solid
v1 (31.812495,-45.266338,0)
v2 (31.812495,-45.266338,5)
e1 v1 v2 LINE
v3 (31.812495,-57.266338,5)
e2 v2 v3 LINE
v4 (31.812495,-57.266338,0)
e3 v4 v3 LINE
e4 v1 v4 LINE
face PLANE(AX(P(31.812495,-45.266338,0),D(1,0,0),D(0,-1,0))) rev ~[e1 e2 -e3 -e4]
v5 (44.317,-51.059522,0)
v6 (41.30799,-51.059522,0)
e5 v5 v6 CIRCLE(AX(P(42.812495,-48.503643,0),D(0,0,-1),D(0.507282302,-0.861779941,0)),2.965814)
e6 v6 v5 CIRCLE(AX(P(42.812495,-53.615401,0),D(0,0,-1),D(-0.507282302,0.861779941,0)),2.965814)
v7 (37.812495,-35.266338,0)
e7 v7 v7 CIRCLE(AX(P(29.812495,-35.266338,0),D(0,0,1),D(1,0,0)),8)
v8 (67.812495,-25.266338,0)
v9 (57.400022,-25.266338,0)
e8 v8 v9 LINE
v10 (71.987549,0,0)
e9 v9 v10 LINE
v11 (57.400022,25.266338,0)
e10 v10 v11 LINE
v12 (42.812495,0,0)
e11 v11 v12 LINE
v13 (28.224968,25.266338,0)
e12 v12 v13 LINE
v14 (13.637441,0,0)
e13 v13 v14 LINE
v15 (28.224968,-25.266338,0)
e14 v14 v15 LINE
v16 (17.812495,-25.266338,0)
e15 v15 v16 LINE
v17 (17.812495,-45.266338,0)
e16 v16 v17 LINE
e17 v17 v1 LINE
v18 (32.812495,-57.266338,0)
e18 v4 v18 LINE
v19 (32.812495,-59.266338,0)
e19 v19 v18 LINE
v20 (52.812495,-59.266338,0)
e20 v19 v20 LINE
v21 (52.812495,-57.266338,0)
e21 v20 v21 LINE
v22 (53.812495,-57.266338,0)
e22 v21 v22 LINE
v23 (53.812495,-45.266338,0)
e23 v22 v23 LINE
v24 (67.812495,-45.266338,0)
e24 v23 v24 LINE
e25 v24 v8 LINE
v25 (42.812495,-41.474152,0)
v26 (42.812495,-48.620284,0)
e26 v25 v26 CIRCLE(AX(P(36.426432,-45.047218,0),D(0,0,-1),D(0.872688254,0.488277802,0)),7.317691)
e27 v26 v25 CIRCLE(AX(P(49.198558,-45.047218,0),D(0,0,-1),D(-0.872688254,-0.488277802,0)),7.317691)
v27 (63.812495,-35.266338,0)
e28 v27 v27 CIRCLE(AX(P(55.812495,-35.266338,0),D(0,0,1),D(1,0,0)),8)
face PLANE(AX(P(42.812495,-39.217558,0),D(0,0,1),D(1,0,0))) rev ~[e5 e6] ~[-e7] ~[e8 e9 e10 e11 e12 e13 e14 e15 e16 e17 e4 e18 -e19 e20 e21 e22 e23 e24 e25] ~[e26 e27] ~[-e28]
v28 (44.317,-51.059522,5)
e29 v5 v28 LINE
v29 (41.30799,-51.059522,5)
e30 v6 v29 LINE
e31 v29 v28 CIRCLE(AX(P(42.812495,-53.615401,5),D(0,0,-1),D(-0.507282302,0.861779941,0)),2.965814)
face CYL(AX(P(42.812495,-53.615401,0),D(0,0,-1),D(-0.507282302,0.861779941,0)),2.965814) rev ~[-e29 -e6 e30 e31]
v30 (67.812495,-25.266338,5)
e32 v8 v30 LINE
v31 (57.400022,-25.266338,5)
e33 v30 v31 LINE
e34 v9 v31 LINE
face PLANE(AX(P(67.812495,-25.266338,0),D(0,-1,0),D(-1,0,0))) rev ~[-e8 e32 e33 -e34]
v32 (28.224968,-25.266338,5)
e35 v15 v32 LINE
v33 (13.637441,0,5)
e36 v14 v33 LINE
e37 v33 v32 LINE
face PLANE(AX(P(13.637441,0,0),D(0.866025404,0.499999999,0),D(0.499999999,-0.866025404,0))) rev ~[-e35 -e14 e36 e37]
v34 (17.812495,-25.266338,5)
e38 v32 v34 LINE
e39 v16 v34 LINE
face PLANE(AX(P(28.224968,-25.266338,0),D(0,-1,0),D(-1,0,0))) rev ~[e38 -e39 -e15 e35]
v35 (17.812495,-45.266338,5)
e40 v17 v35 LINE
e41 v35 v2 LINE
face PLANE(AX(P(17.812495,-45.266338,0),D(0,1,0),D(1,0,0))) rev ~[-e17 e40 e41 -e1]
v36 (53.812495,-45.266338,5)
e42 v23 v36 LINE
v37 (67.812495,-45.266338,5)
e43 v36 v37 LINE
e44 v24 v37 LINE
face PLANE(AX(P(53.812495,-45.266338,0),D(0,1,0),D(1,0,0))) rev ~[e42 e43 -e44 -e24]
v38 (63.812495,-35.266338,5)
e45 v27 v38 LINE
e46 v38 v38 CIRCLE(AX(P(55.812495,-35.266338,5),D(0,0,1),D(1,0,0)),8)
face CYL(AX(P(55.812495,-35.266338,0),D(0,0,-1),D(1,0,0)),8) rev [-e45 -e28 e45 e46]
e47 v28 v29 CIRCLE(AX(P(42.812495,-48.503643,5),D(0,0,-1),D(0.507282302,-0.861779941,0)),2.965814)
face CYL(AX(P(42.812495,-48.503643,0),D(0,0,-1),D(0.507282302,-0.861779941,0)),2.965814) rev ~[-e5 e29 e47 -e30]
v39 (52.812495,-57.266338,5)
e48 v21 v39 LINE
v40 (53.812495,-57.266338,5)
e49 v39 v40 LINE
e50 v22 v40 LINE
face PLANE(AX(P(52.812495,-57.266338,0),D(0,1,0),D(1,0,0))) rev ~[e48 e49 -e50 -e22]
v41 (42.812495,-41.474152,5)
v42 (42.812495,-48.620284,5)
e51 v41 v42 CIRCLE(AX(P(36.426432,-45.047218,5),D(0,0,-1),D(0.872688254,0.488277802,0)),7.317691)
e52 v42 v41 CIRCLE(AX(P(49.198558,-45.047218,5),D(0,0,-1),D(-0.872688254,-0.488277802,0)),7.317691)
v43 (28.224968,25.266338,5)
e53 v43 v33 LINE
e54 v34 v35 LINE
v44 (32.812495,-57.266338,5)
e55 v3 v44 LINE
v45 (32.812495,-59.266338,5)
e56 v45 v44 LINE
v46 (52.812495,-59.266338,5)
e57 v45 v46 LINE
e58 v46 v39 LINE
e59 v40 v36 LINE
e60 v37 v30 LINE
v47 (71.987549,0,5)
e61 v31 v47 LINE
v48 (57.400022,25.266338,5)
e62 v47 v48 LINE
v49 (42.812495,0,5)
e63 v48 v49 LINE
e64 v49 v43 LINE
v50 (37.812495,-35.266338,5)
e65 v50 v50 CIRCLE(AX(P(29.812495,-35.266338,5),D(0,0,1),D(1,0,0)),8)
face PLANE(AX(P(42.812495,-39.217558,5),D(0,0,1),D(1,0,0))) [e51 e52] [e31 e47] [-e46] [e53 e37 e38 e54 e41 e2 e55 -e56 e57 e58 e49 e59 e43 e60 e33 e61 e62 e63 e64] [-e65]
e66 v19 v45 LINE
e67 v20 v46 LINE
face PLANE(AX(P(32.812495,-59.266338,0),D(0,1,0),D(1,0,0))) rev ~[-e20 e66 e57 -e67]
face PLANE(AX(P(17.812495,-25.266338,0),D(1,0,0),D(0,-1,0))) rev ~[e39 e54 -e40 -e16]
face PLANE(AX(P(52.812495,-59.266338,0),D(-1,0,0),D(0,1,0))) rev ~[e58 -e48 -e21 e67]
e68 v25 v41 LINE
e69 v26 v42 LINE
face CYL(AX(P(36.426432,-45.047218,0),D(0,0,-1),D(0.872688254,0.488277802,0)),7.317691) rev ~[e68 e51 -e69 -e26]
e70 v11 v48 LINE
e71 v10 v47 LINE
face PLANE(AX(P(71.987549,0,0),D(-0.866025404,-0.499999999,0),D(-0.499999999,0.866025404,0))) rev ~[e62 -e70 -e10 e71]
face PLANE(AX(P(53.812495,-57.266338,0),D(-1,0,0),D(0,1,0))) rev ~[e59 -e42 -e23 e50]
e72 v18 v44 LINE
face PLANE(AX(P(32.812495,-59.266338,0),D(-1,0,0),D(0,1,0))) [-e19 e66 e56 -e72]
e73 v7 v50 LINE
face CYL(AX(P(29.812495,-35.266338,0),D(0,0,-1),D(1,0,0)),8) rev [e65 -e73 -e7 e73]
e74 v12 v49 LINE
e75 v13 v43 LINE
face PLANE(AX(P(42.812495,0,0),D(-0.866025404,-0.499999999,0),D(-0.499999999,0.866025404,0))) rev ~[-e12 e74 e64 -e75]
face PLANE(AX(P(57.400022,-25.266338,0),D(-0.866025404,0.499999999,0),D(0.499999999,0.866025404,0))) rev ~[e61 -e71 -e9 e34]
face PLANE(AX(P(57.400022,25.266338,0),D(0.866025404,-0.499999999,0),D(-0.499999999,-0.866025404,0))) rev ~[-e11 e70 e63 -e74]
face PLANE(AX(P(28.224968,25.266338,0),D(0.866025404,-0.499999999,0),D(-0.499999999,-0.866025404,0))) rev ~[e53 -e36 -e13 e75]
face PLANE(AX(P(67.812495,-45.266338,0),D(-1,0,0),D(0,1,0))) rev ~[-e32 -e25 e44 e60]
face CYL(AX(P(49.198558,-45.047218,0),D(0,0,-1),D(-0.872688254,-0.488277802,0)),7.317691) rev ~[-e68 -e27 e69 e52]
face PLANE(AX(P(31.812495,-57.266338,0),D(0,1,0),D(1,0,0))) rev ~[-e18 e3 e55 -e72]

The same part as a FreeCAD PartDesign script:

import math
import FreeCAD as App
import Part
import Sketcher
from FreeCAD import Vector
Q = App.Units.Quantity

doc = App.newDocument("Part")
body = doc.addObject("PartDesign::Body", "Body")

# Sketch on XY plane
sketch1 = body.newObject("Sketcher::SketchObject", "Sketch")
sketch1.AttachmentSupport = (doc.getObject("XY_Plane"), [""])
sketch1.MapMode = "FlatFace"
sketch1.addGeometry([
    Part.LineSegment(Vector(17.8, -25.3, 0), Vector(17.8, -45.3, 0)),  # 0
    Part.LineSegment(Vector(17.8, -45.3, 0), Vector(31.8, -45.3, 0)),  # 1
    Part.LineSegment(Vector(31.8, -45.3, 0), Vector(31.8, -57.3, 0)),  # 2
    Part.LineSegment(Vector(31.8, -57.3, 0), Vector(32.8, -57.3, 0)),  # 3
    Part.LineSegment(Vector(32.8, -57.3, 0), Vector(32.8, -59.3, 0)),  # 4
    Part.LineSegment(Vector(32.8, -59.3, 0), Vector(52.8, -59.3, 0)),  # 5
    Part.LineSegment(Vector(52.8, -59.3, 0), Vector(52.8, -57.3, 0)),  # 6
    Part.LineSegment(Vector(52.8, -57.3, 0), Vector(53.8, -57.3, 0)),  # 7
    Part.LineSegment(Vector(53.8, -57.3, 0), Vector(53.8, -45.3, 0)),  # 8
    Part.LineSegment(Vector(53.8, -45.3, 0), Vector(67.8, -45.3, 0)),  # 9
    Part.LineSegment(Vector(67.8, -45.3, 0), Vector(67.8, -25.3, 0)),  # 10
    Part.LineSegment(Vector(67.8, -25.3, 0), Vector(57.4, -25.3, 0)),  # 11
    Part.LineSegment(Vector(57.4, -25.3, 0), Vector(72, 0, 0)),  # 12
    Part.LineSegment(Vector(72, 0, 0), Vector(57.4, 25.3, 0)),  # 13
    Part.LineSegment(Vector(57.4, 25.3, 0), Vector(42.8, 0, 0)),  # 14
    Part.LineSegment(Vector(42.8, 0, 0), Vector(28.2, 25.3, 0)),  # 15
    Part.LineSegment(Vector(28.2, 25.3, 0), Vector(13.6, 0, 0)),  # 16
    Part.LineSegment(Vector(13.6, 0, 0), Vector(28.2, -25.3, 0)),  # 17
    Part.LineSegment(Vector(28.2, -25.3, 0), Vector(17.8, -25.3, 0)),  # 18
    Part.ArcOfCircle(Part.Circle(Vector(42.8, -53.6, 0), Vector(0, 0, 1), 3), math.radians(60), math.radians(120)),  # 19
    Part.ArcOfCircle(Part.Circle(Vector(42.8, -48.5, 0), Vector(0, 0, 1), 3), math.radians(-120), math.radians(-60)),  # 20
    Part.ArcOfCircle(Part.Circle(Vector(49.2, -45, 0), Vector(0, 0, 1), 7.3), math.radians(151), math.radians(209)),  # 21
    Part.ArcOfCircle(Part.Circle(Vector(36.4, -45, 0), Vector(0, 0, 1), 7.3), math.radians(-29), math.radians(29)),  # 22
    Part.Circle(Vector(29.8, -35.3, 0), Vector(0, 0, 1), 8),  # 23
    Part.Circle(Vector(55.8, -35.3, 0), Vector(0, 0, 1), 8),  # 24
], False)
sketch1.addConstraint([
    Sketcher.Constraint("Coincident", 0, 2, 1, 1),
    Sketcher.Constraint("Coincident", 1, 2, 2, 1),
    Sketcher.Constraint("Coincident", 2, 2, 3, 1),
    Sketcher.Constraint("Coincident", 3, 2, 4, 1),
    Sketcher.Constraint("Coincident", 4, 2, 5, 1),
    Sketcher.Constraint("Coincident", 5, 2, 6, 1),
    Sketcher.Constraint("Coincident", 6, 2, 7, 1),
    Sketcher.Constraint("Coincident", 7, 2, 8, 1),
    Sketcher.Constraint("Coincident", 8, 2, 9, 1),
    Sketcher.Constraint("Coincident", 9, 2, 10, 1),
    Sketcher.Constraint("Coincident", 10, 2, 11, 1),
    Sketcher.Constraint("Coincident", 11, 2, 12, 1),
    Sketcher.Constraint("Coincident", 12, 2, 13, 1),
    Sketcher.Constraint("Coincident", 13, 2, 14, 1),
    Sketcher.Constraint("Coincident", 14, 2, 15, 1),
    Sketcher.Constraint("Coincident", 15, 2, 16, 1),
    Sketcher.Constraint("Coincident", 16, 2, 17, 1),
    Sketcher.Constraint("Coincident", 17, 2, 18, 1),
    Sketcher.Constraint("Coincident", 18, 2, 0, 1),
    Sketcher.Constraint("Coincident", 19, 1, 20, 2),
    Sketcher.Constraint("Coincident", 20, 1, 19, 2),
    Sketcher.Constraint("Coincident", 21, 1, 22, 2),
    Sketcher.Constraint("Coincident", 22, 1, 21, 2),
    Sketcher.Constraint("Vertical", 0),
    Sketcher.Constraint("Horizontal", 1),
    Sketcher.Constraint("Vertical", 2),
    Sketcher.Constraint("Horizontal", 3),
    Sketcher.Constraint("Vertical", 4),
    Sketcher.Constraint("Horizontal", 5),
    Sketcher.Constraint("Vertical", 6),
    Sketcher.Constraint("Horizontal", 7),
    Sketcher.Constraint("Vertical", 8),
    Sketcher.Constraint("Horizontal", 9),
    Sketcher.Constraint("Vertical", 10),
    Sketcher.Constraint("Horizontal", 11),
    Sketcher.Constraint("Horizontal", 18),
    Sketcher.Constraint("Equal", 19, 20),
    Sketcher.Constraint("Equal", 21, 22),
    Sketcher.Constraint("Equal", 23, 24),
    Sketcher.Constraint("Symmetric", 11, 2, 13, 2, -1),
    Sketcher.Constraint("Symmetric", 15, 2, 17, 2, -1),
    Sketcher.Constraint("PointOnObject", 12, 2, -1),
    Sketcher.Constraint("PointOnObject", 14, 2, -1),
    Sketcher.Constraint("PointOnObject", 16, 2, -1),
    Sketcher.Constraint("Parallel", 12, 14),
    Sketcher.Constraint("Parallel", 13, 15),
    Sketcher.Constraint("Parallel", 14, 16),
    Sketcher.Constraint("Horizontal", 21, 3, 22, 3),
    Sketcher.Constraint("Horizontal", 23, 3, 24, 3),
    Sketcher.Constraint("Horizontal", 3, 2, 6, 2),
    Sketcher.Constraint("Horizontal", 1, 2, 8, 2),
    Sketcher.Constraint("Horizontal", 13, 2, 15, 2),
    Sketcher.Constraint("Horizontal", 19, 1, 20, 1),
    Sketcher.Constraint("Vertical", 20, 3, 14, 2),
    Sketcher.Constraint("Vertical", 14, 2, 21, 1),
    Sketcher.Constraint("Equal", 3, 7),
    Sketcher.Constraint("Equal", 1, 9),
    Sketcher.Constraint("Equal", 11, 18),
    Sketcher.Constraint("Equal", 5, 0),
    Sketcher.Constraint("Diameter", 23, 16.0),
    Sketcher.Constraint("DistanceX", 1, 1, 1, 2, 14.0),
    Sketcher.Constraint("DistanceX", 3, 1, 3, 2, 1.0),
    Sketcher.Constraint("DistanceX", 5, 1, 5, 2, 20.0),
    Sketcher.Constraint("DistanceY", 2, 2, 2, 1, 12.0),
    Sketcher.Constraint("DistanceY", 4, 2, 4, 1, 2.0),
    Sketcher.Constraint("Angle", 12, Q("60 deg")),
    Sketcher.Constraint("DistanceX", 23, 3, 20, 3, 13.0),
    Sketcher.Constraint("DistanceX", 20, 3, 24, 3, 13.0),
    Sketcher.Constraint("DistanceY", 0, 2, 23, 3, 10.0),
    Sketcher.Constraint("Radius", 21, 7.317691),
    Sketcher.Constraint("DistanceX", -1, 1, 19, 1, 44.317),
    Sketcher.Constraint("Radius", 19, 2.965814),
    Sketcher.Constraint("DistanceY", 19, 3, -1, 1, 53.615401),
    Sketcher.Constraint("DistanceX", 11, 2, 11, 1, 10.412473),
    Sketcher.Constraint("DistanceX", -1, 1, 12, 2, 71.987549),
    Sketcher.Constraint("DistanceY", 21, 1, -1, 1, 41.474152),
    Sketcher.Constraint("DistanceY", 22, 3, 23, 3, 9.78088),
])
pad1 = body.newObject("PartDesign::Pad", "Pad")
pad1.Profile = sketch1
pad1.Length = 5

doc.recompute()
